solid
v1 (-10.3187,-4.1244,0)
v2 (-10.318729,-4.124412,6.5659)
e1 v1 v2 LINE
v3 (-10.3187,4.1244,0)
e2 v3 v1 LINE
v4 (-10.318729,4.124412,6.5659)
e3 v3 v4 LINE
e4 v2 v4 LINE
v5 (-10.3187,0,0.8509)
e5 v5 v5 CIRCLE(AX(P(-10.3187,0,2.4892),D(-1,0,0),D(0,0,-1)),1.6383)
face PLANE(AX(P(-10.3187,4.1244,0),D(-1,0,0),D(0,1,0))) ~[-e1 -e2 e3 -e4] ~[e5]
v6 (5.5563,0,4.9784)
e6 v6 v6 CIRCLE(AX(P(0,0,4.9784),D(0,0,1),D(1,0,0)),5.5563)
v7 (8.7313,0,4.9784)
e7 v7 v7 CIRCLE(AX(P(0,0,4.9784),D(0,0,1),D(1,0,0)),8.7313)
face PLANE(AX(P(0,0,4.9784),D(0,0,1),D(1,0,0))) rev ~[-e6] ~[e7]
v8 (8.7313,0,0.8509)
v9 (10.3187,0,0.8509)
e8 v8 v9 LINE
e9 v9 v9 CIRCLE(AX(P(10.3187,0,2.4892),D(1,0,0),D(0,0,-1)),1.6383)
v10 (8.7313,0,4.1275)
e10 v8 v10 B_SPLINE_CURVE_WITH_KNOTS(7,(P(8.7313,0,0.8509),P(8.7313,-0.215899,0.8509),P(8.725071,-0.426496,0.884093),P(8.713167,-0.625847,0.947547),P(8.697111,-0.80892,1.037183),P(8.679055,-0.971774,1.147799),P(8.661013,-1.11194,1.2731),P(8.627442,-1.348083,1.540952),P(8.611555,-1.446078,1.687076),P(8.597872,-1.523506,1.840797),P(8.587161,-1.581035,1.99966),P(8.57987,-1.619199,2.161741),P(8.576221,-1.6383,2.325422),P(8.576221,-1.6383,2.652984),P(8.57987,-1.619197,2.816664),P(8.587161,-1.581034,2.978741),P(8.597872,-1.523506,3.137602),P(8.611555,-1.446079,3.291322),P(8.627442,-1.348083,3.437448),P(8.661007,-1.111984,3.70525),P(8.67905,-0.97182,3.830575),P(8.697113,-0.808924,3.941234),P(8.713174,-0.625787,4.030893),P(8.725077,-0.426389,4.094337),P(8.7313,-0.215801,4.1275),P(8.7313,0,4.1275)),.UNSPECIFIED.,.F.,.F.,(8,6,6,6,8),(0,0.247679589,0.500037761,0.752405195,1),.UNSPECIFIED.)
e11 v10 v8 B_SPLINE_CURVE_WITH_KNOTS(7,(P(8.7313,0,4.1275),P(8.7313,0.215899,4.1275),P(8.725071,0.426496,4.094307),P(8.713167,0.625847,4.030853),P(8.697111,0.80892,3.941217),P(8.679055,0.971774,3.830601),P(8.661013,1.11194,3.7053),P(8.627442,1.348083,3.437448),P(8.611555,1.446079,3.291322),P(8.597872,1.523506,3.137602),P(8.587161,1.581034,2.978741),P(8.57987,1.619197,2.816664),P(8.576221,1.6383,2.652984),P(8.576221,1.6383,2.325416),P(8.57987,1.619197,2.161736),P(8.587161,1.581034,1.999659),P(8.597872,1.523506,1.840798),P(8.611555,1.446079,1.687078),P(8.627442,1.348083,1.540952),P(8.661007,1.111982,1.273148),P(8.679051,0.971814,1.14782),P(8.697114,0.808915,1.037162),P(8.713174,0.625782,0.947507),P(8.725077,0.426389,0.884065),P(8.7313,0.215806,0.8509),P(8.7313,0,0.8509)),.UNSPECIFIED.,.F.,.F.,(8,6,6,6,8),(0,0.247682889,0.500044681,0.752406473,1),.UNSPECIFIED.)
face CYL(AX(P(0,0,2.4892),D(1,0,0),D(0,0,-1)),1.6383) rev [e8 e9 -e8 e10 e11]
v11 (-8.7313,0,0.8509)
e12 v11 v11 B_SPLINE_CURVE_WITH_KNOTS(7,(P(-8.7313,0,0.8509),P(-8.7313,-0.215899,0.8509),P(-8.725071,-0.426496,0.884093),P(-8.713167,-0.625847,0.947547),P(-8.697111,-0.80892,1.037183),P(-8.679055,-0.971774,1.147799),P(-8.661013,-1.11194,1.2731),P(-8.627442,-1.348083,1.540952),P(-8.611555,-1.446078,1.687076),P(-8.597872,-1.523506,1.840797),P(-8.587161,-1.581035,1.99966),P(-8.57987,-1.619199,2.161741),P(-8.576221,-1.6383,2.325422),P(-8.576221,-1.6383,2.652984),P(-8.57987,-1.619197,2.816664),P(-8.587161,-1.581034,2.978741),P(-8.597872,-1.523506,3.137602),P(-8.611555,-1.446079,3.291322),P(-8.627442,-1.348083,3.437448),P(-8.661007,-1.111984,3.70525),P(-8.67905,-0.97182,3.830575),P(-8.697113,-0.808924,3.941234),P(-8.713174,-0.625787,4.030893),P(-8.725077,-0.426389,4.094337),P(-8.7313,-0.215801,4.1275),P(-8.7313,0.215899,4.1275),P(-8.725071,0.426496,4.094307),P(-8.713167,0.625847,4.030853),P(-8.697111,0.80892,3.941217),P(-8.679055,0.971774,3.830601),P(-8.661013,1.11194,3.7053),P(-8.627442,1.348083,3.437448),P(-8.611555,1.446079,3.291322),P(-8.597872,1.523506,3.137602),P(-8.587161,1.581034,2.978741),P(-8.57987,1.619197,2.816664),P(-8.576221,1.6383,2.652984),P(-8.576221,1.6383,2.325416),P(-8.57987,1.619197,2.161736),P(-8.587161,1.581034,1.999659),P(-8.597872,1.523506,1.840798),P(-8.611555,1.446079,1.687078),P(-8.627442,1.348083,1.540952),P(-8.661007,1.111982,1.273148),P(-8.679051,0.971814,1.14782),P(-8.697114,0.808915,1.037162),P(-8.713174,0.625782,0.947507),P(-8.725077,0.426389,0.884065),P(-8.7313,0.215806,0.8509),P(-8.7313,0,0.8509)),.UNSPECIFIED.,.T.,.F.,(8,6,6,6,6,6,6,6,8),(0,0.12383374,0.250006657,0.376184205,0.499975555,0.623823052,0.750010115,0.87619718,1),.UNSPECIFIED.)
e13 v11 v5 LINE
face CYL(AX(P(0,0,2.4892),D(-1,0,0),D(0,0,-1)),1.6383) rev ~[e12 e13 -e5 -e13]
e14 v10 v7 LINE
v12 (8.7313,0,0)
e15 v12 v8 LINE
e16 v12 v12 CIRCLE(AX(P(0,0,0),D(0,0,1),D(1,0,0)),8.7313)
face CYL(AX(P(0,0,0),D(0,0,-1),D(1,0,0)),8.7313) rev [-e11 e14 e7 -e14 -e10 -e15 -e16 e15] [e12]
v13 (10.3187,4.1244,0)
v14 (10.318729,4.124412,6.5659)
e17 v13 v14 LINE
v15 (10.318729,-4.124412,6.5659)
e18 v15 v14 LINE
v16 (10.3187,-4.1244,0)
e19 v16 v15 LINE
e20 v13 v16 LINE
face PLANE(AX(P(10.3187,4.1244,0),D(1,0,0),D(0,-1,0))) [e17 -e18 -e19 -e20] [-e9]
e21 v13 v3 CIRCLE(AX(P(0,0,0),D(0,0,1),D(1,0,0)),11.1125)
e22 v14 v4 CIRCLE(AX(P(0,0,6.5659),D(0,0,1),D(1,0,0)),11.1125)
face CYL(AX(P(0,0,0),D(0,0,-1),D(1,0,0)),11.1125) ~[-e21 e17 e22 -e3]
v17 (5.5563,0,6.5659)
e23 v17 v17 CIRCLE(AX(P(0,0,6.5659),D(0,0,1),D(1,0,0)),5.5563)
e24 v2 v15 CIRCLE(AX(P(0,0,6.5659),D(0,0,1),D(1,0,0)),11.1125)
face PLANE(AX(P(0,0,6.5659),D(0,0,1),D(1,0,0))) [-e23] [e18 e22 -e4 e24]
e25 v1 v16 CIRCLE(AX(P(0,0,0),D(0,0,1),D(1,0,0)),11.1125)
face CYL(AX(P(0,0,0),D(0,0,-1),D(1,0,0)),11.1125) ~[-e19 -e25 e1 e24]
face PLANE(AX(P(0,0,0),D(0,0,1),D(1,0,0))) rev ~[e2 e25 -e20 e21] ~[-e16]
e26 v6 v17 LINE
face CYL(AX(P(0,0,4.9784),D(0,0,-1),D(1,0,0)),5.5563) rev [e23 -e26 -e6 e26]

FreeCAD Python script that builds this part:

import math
import FreeCAD as App
import Part
import Sketcher
Q = App.Units.Quantity

doc = App.newDocument("Part")
body = doc.addObject("PartDesign::Body", "Body")

sketch1 = body.newObject("Sketcher::SketchObject", "Sketch")
sketch1.AttachmentSupport = (doc.getObject("XY_Plane"), [""])
sketch1.MapMode = "FlatFace"
sketch1.addGeometry([
    Part.Circle(App.Vector(0, 0, 0), App.Vector(0, 0, 1), 11),
    Part.Circle(App.Vector(0, 0, 0), App.Vector(0, 0, 1), 9),
], False)
sketch1.addConstraint([
    Sketcher.Constraint("Coincident", 0, 3, -1, 1),
    Sketcher.Constraint("Coincident", 1, 3, -1, 1),
    Sketcher.Constraint("Diameter", 0, Q("0.875 in")),
    Sketcher.Constraint("Diameter", 1, Q("0.6875 in")),
])
pad1 = body.newObject("PartDesign::Pad", "Pad")
pad1.Profile = sketch1
pad1.Length = Q("0.196 in")

sketch2 = body.newObject("Sketcher::SketchObject", "Sketch001")
sketch2.AttachmentSupport = (doc.getObject("XY_Plane"), [""])
sketch2.MapMode = "FlatFace"
sketch2.AttachmentOffset = App.Placement(App.Vector(0, 0, 0.196 * 25.4), App.Rotation())
sketch2.addGeometry([
    Part.Circle(App.Vector(0, 0, 0), App.Vector(0, 0, 1), 11),
    Part.Circle(App.Vector(0, 0, 0), App.Vector(0, 0, 1), 6),
], False)
sketch2.addConstraint([
    Sketcher.Constraint("Coincident", 0, 3, -1, 1),
    Sketcher.Constraint("Coincident", 1, 3, -1, 1),
    Sketcher.Constraint("Diameter", 0, Q("0.875 in")),
    Sketcher.Constraint("Diameter", 1, Q("0.4375 in")),
])
pad2 = body.newObject("PartDesign::Pad", "Pad001")
pad2.Profile = sketch2
pad2.Length = Q("0.0625 in")

sketch3 = body.newObject("Sketcher::SketchObject", "Sketch002")
sketch3.AttachmentSupport = (doc.getObject("YZ_Plane"), [""])
sketch3.MapMode = "FlatFace"
sketch3.addGeometry(Part.Circle(App.Vector(0, 2.5, 0), App.Vector(0, 0, 1), 1.6), False)
sketch3.addConstraint([
    Sketcher.Constraint("PointOnObject", 0, 3, -2),
    Sketcher.Constraint("Diameter", 0, Q("0.129 in")),
    Sketcher.Constraint("DistanceY", -1, 1, 0, 3, Q("0.098 in")),
])
doc.recompute()
hole = body.newObject("PartDesign::Hole", "Hole")
hole.Profile = sketch3
hole.ThreadType = "None"
hole.Diameter = Q("0.129 in")
hole.DepthType = "ThroughAll"

sketch4 = body.newObject("Sketcher::SketchObject", "Sketch003")
sketch4.AttachmentSupport = (doc.getObject("XY_Plane"), [""])
sketch4.MapMode = "FlatFace"
sketch4.addGeometry([
    Part.LineSegment(App.Vector(10, -4, 0), App.Vector(10, 4, 0)),
    Part.ArcOfCircle(Part.Circle(App.Vector(0, 0, 0), App.Vector(0, 0, 1), 11), math.radians(-22), math.radians(22)),
], False)
sketch4.addConstraint([
    Sketcher.Constraint("Coincident", 0, 1, 1, 1),
    Sketcher.Constraint("Coincident", 1, 2, 0, 2),
    Sketcher.Constraint("Vertical", 0),
    Sketcher.Constraint("Coincident", 1, 3, -1, 1),
    Sketcher.Constraint("Radius", 1, Q("0.4375 in")),
    Sketcher.Constraint("DistanceX", -1, 1, 0, 1, Q("0.406248 in")),
])
pocket1 = body.newObject("PartDesign::Pocket", "Pocket")
pocket1.Profile = sketch4
pocket1.Type = "ThroughAll"
pocket1.Reversed = True
doc.recompute()

mirrored = body.newObject("PartDesign::Mirrored", "Mirrored")
mirrored.Originals = [hole, pocket1]
mirrored.MirrorPlane = (doc.getObject("YZ_Plane"), [""])
body.Tip = mirrored

doc.recompute()
